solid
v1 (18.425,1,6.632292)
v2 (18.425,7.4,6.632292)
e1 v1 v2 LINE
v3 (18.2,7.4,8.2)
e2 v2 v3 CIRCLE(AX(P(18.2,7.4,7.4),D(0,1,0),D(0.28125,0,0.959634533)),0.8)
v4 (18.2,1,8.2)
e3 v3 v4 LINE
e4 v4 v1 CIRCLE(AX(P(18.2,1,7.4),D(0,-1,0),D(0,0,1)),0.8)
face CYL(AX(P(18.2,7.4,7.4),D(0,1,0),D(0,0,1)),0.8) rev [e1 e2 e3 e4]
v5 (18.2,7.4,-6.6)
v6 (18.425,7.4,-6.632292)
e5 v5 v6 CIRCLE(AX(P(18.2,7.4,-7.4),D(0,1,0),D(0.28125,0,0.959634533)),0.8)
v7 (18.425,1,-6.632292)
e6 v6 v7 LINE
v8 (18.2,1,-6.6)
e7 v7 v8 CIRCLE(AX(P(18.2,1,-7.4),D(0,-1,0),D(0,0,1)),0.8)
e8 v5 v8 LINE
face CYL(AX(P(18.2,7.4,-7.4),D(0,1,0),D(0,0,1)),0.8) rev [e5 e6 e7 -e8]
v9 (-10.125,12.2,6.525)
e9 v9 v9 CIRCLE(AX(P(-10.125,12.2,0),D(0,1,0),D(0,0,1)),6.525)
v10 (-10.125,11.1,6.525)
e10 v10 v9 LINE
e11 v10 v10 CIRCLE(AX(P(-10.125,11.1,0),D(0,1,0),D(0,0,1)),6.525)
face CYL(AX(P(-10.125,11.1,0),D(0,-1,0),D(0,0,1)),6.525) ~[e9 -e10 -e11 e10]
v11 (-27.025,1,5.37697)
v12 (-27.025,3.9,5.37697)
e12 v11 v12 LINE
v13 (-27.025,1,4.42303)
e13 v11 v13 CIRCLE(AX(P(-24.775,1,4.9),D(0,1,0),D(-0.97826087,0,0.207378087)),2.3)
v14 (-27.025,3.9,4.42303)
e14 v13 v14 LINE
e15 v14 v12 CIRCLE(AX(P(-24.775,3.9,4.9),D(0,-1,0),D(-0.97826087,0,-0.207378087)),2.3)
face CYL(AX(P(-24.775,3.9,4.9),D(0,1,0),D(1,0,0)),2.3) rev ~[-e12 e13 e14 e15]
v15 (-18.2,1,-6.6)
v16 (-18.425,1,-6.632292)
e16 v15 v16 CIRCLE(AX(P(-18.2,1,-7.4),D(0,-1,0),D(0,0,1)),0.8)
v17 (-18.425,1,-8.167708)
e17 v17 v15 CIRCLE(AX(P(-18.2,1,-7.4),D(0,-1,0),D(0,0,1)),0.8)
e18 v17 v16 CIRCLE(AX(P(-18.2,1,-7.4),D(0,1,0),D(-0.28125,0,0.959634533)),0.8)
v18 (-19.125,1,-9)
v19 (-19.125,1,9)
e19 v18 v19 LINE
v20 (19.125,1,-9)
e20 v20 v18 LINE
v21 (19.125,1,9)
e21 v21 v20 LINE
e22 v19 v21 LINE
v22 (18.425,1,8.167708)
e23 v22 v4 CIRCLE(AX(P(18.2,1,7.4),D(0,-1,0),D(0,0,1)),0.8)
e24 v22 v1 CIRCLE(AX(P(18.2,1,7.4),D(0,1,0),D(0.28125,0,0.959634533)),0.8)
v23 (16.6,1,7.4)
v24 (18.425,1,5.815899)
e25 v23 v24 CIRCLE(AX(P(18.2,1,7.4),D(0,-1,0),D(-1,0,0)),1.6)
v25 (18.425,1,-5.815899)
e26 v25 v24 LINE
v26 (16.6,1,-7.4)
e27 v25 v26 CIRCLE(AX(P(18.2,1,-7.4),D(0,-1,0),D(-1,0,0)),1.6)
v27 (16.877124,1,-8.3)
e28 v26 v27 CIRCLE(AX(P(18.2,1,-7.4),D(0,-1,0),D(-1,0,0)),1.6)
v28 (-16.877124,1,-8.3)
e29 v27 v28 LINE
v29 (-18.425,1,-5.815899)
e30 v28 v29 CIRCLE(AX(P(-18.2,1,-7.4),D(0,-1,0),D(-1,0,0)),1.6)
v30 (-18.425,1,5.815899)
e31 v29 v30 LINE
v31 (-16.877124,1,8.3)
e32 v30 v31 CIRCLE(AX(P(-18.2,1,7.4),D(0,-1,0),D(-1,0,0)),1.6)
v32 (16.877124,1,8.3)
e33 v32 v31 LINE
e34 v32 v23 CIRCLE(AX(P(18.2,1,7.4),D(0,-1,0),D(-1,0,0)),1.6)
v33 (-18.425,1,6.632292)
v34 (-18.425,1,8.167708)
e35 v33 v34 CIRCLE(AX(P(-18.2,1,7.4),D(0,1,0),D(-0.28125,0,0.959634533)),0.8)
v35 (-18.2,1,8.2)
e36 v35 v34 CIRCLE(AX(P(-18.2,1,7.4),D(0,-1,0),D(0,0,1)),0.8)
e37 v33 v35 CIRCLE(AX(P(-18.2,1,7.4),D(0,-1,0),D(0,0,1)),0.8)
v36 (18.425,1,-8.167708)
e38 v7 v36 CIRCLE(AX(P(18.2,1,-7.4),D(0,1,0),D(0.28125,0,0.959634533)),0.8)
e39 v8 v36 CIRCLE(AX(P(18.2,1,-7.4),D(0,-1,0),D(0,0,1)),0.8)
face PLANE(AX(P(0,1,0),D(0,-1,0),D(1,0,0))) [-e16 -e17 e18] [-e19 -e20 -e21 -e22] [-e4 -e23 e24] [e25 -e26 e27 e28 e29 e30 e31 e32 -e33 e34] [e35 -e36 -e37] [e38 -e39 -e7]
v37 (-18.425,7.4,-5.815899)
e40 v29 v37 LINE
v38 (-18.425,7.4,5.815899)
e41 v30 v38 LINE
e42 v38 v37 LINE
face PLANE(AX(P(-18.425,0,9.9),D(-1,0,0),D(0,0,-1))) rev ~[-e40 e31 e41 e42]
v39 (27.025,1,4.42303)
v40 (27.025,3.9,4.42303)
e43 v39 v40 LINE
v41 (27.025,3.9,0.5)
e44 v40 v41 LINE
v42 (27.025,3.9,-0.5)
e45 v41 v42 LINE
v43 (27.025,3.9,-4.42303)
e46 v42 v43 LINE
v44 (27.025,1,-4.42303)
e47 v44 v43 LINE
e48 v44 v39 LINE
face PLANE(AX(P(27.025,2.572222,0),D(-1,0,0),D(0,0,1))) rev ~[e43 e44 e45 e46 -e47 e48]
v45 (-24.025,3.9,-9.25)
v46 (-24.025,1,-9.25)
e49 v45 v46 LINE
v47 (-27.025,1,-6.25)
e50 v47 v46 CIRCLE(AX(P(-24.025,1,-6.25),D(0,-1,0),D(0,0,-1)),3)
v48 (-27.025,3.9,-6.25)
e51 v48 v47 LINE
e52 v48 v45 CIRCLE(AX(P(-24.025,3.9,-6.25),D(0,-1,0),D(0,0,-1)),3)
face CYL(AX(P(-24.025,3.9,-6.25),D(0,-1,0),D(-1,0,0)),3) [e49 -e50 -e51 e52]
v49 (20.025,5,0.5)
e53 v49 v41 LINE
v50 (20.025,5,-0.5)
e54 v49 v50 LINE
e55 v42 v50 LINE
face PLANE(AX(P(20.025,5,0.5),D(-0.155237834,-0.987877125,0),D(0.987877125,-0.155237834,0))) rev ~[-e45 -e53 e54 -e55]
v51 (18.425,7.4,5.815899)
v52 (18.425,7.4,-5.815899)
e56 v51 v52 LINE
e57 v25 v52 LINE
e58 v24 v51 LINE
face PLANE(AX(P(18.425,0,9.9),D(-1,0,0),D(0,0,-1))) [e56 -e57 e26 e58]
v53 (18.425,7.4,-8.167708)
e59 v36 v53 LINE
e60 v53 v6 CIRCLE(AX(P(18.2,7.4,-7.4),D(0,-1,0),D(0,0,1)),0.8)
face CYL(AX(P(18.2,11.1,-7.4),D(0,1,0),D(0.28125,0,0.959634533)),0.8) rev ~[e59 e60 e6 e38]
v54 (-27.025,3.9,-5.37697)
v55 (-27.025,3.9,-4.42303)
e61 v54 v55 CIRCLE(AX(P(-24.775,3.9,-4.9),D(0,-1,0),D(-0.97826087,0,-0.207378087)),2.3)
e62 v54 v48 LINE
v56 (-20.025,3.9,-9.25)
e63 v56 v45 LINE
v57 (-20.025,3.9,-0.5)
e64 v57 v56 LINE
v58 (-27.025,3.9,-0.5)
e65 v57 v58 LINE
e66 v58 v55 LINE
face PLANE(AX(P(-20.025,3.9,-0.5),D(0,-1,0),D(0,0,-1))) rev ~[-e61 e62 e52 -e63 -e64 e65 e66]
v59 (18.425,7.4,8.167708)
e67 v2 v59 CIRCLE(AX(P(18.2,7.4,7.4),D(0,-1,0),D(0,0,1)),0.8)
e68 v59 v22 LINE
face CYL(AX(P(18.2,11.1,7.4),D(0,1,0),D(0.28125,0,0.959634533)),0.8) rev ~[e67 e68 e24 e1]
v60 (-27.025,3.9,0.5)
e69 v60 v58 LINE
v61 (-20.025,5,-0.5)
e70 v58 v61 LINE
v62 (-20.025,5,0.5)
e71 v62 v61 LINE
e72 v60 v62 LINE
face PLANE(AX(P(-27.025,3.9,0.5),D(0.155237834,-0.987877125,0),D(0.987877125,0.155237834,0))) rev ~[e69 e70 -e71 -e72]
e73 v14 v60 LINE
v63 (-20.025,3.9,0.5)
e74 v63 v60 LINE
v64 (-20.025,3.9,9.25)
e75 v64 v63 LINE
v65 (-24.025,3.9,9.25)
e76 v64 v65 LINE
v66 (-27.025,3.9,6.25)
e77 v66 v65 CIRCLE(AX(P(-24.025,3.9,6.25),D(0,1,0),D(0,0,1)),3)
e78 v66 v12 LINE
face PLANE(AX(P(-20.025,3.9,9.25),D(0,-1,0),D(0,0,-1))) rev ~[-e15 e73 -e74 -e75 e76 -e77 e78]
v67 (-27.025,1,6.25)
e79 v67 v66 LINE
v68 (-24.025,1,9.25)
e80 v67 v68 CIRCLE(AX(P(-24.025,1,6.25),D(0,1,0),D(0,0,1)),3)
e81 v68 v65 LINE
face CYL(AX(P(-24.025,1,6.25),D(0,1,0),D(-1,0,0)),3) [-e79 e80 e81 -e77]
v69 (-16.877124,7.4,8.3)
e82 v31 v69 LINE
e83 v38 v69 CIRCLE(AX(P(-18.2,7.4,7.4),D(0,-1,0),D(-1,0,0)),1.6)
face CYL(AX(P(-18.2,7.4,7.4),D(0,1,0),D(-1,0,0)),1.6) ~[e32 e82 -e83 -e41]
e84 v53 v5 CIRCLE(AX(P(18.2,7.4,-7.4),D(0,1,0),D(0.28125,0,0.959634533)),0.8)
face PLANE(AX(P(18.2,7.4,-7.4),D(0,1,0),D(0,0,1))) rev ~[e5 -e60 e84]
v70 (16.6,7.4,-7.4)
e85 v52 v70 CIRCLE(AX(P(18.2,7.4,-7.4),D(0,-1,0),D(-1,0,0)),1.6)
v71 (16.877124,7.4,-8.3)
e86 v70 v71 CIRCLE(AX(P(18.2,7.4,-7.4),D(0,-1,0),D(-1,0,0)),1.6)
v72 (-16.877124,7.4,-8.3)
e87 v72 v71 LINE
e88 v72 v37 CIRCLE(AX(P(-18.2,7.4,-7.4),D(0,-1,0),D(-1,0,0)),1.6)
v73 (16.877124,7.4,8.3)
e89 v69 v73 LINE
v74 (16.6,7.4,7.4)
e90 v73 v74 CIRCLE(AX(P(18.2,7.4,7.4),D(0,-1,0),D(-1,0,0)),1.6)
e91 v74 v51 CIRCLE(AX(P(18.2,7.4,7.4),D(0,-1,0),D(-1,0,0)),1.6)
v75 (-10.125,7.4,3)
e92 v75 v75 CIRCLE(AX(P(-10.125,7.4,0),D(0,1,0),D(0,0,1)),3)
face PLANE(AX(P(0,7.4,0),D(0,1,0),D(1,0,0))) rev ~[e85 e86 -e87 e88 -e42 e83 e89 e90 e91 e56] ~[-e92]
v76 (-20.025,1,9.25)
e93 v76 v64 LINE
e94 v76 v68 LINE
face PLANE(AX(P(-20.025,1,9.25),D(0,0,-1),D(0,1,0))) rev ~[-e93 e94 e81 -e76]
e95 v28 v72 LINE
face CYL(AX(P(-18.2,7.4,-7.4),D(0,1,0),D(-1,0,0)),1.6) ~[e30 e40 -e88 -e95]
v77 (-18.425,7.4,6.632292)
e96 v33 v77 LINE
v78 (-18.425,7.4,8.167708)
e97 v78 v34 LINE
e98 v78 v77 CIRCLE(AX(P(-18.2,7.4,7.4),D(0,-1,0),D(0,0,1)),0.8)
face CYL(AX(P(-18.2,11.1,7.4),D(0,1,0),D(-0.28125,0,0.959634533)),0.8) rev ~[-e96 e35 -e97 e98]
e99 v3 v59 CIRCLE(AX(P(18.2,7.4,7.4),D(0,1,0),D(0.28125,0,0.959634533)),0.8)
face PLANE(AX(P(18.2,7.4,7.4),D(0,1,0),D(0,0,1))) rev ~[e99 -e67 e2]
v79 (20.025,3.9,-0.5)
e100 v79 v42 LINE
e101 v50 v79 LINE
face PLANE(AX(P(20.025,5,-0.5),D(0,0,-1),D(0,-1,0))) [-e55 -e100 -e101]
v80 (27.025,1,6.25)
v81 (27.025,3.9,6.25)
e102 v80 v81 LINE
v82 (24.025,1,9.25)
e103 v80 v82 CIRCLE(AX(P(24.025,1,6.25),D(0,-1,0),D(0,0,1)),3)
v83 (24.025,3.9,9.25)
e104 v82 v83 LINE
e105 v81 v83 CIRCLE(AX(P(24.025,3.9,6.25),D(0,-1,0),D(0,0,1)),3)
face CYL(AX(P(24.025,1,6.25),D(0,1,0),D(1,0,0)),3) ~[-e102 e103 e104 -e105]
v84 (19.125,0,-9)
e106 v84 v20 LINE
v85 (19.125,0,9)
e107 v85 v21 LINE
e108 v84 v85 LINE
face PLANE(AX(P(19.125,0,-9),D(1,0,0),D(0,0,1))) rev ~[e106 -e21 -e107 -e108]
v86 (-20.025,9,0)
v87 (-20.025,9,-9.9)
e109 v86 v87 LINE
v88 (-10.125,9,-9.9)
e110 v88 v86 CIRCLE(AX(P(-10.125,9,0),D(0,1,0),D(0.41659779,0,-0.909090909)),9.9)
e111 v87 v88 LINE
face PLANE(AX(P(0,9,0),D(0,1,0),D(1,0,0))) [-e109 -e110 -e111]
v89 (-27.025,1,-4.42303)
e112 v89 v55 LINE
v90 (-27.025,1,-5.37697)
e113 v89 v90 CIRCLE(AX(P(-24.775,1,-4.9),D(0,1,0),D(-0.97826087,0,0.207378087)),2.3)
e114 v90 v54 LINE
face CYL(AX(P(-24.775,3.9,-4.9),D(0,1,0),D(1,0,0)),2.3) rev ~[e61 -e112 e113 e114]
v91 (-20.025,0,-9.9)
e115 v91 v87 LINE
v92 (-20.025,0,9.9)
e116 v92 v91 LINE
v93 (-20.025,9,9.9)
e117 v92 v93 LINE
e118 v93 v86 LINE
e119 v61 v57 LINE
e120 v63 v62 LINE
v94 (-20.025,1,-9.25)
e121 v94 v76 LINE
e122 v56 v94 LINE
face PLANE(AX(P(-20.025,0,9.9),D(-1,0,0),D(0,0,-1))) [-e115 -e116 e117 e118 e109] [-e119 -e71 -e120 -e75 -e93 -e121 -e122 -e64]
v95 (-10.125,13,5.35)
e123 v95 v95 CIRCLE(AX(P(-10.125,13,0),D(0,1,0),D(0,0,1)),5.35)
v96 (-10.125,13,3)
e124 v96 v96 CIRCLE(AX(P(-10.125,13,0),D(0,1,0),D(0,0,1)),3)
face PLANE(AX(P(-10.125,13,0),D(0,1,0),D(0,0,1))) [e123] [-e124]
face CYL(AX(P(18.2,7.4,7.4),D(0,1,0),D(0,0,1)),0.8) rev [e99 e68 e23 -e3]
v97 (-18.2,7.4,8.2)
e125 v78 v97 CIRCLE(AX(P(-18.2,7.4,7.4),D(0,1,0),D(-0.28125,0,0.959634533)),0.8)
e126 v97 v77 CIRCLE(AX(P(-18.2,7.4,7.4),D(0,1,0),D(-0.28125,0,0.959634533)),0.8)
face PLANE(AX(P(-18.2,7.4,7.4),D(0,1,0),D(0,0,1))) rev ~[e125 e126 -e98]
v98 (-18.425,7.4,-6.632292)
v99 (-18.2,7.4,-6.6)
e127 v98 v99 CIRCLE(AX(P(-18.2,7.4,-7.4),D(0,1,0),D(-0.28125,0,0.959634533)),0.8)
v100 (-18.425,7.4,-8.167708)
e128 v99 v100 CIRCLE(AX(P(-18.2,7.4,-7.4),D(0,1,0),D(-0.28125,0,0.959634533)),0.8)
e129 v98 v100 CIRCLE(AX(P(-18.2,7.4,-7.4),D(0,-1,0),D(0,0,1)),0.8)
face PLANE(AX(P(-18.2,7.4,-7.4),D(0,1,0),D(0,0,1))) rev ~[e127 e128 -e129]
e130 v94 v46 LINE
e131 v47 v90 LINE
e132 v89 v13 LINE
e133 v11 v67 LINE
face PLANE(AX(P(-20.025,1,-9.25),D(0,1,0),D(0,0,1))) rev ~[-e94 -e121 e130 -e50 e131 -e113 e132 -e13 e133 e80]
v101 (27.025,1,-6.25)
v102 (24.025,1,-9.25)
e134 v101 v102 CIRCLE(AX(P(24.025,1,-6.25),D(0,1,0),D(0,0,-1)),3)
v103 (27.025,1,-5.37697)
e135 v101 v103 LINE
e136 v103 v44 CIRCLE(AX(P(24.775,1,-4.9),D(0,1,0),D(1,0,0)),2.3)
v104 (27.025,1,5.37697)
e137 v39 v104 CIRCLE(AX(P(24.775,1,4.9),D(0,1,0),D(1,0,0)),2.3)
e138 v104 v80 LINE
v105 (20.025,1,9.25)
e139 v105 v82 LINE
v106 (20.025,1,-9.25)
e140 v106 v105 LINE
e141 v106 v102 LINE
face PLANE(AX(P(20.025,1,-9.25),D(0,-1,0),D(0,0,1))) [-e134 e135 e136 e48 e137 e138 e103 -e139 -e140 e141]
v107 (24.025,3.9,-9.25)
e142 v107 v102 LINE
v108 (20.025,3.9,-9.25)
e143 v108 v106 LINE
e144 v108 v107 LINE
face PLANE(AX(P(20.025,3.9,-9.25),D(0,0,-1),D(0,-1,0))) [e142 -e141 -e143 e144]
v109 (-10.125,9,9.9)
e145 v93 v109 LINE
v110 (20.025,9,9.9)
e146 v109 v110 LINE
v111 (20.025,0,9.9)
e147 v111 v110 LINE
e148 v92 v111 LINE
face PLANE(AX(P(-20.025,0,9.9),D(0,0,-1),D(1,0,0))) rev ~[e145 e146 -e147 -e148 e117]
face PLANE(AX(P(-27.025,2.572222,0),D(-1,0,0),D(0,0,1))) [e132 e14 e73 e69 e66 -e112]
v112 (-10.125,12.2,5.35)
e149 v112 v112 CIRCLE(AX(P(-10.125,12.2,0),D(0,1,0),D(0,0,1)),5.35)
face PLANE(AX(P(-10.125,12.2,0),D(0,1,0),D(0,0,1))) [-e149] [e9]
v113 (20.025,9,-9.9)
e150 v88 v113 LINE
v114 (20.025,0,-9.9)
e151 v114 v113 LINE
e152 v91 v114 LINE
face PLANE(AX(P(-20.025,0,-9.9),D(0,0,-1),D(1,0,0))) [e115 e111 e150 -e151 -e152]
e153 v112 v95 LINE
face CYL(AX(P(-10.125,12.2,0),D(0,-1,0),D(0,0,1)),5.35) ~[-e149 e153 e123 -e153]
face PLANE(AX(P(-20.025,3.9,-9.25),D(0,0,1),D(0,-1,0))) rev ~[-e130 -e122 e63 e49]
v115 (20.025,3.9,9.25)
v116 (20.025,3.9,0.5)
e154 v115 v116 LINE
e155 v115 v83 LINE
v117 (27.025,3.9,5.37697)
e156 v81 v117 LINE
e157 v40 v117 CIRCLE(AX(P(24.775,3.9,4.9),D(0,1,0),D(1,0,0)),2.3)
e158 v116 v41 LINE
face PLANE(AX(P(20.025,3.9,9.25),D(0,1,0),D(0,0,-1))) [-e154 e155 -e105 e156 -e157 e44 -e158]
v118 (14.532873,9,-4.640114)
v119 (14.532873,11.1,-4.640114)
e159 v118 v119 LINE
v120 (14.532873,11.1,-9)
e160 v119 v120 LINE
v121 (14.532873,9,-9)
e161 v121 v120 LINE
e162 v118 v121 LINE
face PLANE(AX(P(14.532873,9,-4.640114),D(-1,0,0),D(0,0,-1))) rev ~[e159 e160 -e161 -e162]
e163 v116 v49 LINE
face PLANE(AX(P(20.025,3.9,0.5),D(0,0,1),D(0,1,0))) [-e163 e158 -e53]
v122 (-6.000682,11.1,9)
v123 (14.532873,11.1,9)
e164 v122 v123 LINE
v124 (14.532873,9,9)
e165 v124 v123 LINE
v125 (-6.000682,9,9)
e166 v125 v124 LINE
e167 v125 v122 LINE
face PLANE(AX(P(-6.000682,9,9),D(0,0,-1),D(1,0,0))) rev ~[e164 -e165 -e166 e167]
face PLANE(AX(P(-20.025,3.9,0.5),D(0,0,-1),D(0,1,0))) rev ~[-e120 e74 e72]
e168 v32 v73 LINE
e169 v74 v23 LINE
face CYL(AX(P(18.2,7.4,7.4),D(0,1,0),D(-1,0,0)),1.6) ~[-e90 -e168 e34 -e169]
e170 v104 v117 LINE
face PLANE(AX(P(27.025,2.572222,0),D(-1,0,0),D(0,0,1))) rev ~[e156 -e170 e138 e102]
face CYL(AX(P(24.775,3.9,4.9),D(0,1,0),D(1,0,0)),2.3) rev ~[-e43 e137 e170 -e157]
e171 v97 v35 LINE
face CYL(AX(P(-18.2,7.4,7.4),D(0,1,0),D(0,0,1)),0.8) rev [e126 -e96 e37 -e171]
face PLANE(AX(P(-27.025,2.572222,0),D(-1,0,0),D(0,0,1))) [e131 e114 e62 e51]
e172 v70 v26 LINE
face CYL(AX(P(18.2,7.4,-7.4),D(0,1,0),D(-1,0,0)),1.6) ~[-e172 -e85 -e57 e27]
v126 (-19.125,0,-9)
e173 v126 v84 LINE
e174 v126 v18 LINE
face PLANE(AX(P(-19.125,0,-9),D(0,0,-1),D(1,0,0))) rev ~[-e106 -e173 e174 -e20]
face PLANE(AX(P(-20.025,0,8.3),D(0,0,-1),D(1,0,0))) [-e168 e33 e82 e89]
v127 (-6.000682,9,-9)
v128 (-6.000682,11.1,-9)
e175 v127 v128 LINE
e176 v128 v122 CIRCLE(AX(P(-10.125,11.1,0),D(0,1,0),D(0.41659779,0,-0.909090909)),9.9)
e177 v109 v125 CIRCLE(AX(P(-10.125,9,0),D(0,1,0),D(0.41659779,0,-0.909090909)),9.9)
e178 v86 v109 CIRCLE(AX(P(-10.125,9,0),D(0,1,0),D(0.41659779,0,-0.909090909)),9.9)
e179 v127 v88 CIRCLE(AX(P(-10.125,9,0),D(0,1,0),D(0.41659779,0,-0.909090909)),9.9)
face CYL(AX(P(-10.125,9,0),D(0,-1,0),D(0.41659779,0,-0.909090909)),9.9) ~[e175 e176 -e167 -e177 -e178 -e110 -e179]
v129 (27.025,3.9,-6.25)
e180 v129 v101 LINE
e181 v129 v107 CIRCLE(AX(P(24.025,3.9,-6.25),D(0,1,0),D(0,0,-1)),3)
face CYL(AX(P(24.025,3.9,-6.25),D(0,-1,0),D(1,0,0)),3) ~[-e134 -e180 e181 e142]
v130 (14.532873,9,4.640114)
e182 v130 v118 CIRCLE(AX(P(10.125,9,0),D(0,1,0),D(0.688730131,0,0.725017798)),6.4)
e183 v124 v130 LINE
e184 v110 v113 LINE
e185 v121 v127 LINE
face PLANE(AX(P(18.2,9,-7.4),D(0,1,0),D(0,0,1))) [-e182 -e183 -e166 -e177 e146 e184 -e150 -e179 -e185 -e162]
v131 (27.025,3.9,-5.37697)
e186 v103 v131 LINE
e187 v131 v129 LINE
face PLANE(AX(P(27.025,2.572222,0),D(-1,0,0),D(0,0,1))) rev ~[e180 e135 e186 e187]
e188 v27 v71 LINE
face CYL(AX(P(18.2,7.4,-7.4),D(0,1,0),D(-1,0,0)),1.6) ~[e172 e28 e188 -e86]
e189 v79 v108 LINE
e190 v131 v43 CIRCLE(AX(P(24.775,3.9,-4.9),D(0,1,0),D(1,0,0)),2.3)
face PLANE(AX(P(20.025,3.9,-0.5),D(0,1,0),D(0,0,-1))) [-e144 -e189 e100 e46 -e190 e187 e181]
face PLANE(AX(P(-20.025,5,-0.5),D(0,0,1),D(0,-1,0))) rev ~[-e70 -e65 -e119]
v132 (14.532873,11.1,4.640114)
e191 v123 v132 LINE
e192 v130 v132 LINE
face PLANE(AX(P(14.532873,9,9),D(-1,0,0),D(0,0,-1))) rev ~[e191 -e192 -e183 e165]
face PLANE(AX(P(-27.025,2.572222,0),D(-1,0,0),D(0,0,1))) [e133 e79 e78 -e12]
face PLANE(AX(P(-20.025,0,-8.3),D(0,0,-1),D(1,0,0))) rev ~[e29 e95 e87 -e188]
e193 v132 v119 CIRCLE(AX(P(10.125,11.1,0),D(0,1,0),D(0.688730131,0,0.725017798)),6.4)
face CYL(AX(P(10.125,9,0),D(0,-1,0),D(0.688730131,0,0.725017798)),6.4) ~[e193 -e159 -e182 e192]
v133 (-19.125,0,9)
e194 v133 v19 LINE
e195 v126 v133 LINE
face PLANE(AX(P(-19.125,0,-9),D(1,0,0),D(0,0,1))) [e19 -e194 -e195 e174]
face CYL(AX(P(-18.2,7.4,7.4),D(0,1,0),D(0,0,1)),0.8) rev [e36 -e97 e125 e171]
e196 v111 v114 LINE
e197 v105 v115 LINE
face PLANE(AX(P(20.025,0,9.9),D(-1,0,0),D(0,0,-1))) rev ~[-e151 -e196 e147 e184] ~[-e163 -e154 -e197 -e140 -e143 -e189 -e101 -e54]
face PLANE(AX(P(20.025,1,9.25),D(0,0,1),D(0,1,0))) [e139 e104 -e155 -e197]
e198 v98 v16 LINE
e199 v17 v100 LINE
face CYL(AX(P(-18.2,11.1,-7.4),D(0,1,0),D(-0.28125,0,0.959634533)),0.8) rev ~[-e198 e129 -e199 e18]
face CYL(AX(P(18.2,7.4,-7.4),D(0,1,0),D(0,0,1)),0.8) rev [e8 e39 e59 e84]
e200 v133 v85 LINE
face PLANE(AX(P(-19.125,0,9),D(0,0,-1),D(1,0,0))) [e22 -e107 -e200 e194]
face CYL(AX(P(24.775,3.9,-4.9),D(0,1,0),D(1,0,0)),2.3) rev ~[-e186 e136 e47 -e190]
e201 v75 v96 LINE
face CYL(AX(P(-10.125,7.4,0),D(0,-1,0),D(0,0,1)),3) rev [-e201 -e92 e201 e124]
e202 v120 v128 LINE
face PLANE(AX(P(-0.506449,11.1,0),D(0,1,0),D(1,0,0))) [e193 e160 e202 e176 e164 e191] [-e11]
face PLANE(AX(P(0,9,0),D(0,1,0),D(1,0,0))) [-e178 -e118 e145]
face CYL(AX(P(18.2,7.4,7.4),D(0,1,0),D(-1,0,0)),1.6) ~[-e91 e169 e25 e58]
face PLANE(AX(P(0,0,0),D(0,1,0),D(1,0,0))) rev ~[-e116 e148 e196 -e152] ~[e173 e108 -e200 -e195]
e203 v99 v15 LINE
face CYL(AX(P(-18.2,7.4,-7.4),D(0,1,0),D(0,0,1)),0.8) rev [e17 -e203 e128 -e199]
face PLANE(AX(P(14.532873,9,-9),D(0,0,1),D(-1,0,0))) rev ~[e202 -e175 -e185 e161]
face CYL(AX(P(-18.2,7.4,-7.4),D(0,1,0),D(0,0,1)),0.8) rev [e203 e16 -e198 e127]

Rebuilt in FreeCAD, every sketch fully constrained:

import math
import FreeCAD as App
import Part
import Sketcher
from FreeCAD import Vector


def edges_at(feature, points):
    """Names of the edges that pass closest to the given points."""
    edges = feature.Shape.Edges
    near = lambda p: min(range(len(edges)), key=lambda i: edges[i].distToShape(Part.Vertex(*p))[0])
    return sorted({f"Edge{near(p) + 1}" for p in points})


def faces_at(feature, points):
    """Names of the faces that lie closest to the given points."""
    faces = feature.Shape.Faces
    near = lambda p: min(range(len(faces)), key=lambda i: faces[i].distToShape(Part.Vertex(*p))[0])
    return sorted({f"Face{near(p) + 1}" for p in points})

doc = App.newDocument("Part")
params = doc.addObject("Spreadsheet::Sheet", "Params")
for row, (alias, value) in enumerate([
    ("sketch1_height", "19.8 mm"),
    ("sketch1_width", "40.05 mm"),
    ("pad1_length", "9 mm"),
    ("thickness_wall", "1.6 mm"),
    ("sketch2_height", "18 mm"),
    ("sketch2_width", "38.25 mm"),
    ("pocket1_length", "1 mm"),
    ("sketch3_radius", "9.9 mm"),
    ("sketch3_radius2", "6.4 mm"),
    ("pad2_length", "2.1 mm"),
    ("sketch4_diameter", "13.05 mm"),
    ("pad3_length", "1.1 mm"),
    ("sketch5_diameter", "10.7 mm"),
    ("pad4_length", "0.8 mm"),
    ("sketch6_diameter", "6 mm"),
    ("pocket2_length", "5.6 mm"),
    ("sketch7_diameter", "1.6 mm"),
    ("pocket3_length", "14 mm"),
    ("sketch8_diameter", "3.2 mm"),
    ("sketch8_diameter2", "1.6 mm"),
    ("pad5_length", "6.4 mm"),
    ("sketch9_diameter", "1.6 mm"),
    ("pad6_length", "1.6 mm"),
    ("sketch10_height", "1 mm"),
    ("sketch10_width", "2.9 mm"),
    ("sketch10_width2", "1.1 mm"),
    ("sketch10_height2", "18.5 mm"),
    ("pad7_length", "7 mm"),
    ("sketch11_width", "7 mm"),
    ("sketch11_height", "1.1 mm"),
    ("pocket4_length", "7 mm"),
    ("sketch12_diameter", "4.6 mm"),
    ("pocket5_length", "7 mm"),
    ("sketch13_height", "1 mm"),
    ("sketch13_width", "2.9 mm"),
    ("sketch13_width2", "1.1 mm"),
    ("sketch13_height2", "18.5 mm"),
    ("pad8_length", "7 mm"),
    ("sketch14_diameter", "4.6 mm"),
    ("pocket6_length", "7 mm"),
    ("fillet_radius", "3 mm"),
    ("sketch15_width", "7 mm"),
    ("sketch15_height", "1.1 mm"),
    ("pocket7_length", "7 mm"),
], start=1):
    params.set(f"A{row}", alias)
    params.set(f"B{row}", "=" + value)
    params.setAlias(f"B{row}", alias)

body = doc.addObject("PartDesign::Body", "Body")

sketch1 = body.newObject("Sketcher::SketchObject", "Sketch")
sketch1.AttachmentSupport = (doc.getObject("XZ_Plane"), [""])
sketch1.MapMode = "FlatFace"
sketch1.addGeometry([
    Part.LineSegment(Vector(-20, -10, 0), Vector(-20, 10, 0)),
    Part.LineSegment(Vector(-20, 10, 0), Vector(20, 10, 0)),
    Part.LineSegment(Vector(20, 10, 0), Vector(20, -10, 0)),
    Part.LineSegment(Vector(20, -10, 0), Vector(-20, -10, 0)),
], False)
sketch1.addConstraint([
    Sketcher.Constraint("Coincident", 0, 2, 1, 1),
    Sketcher.Constraint("Coincident", 1, 2, 2, 1),
    Sketcher.Constraint("Coincident", 2, 2, 3, 1),
    Sketcher.Constraint("Coincident", 3, 2, 0, 1),
    Sketcher.Constraint("Vertical", 0),
    Sketcher.Constraint("Horizontal", 1),
    Sketcher.Constraint("Vertical", 2),
    Sketcher.Constraint("Horizontal", 3),
    Sketcher.Constraint("Symmetric", 0, 2, 2, 2, -1, 1),
    Sketcher.Constraint("DistanceY", 0, 1, 0, 2, 19.8),
    Sketcher.Constraint("DistanceX", 1, 1, 1, 2, 40.05),
])
sketch1.setExpression("Constraints[9]", "Params.sketch1_height")
sketch1.setExpression("Constraints[10]", "Params.sketch1_width")
pad1 = body.newObject("PartDesign::Pad", "Pad")
pad1.Profile = sketch1
pad1.setExpression("Length", "Params.pad1_length")
pad1.Reversed = True
doc.recompute()

thickness = body.newObject("PartDesign::Thickness", "Thickness")
thickness.Base = (pad1, faces_at(pad1, [(0, 0, 0)]))
thickness.setExpression("Value", "Params.thickness_wall")
thickness.Reversed = True
thickness.Join = "Intersection"

sketch2 = body.newObject("Sketcher::SketchObject", "Sketch001")
sketch2.AttachmentSupport = (doc.getObject("XZ_Plane"), [""])
sketch2.MapMode = "FlatFace"
sketch2.addGeometry([
    Part.LineSegment(Vector(-19, 9, 0), Vector(-19, -9, 0)),
    Part.LineSegment(Vector(-19, -9, 0), Vector(19, -9, 0)),
    Part.LineSegment(Vector(19, -9, 0), Vector(19, 9, 0)),
    Part.LineSegment(Vector(19, 9, 0), Vector(-19, 9, 0)),
], False)
sketch2.addConstraint([
    Sketcher.Constraint("Coincident", 0, 2, 1, 1),
    Sketcher.Constraint("Coincident", 1, 2, 2, 1),
    Sketcher.Constraint("Coincident", 2, 2, 3, 1),
    Sketcher.Constraint("Coincident", 3, 2, 0, 1),
    Sketcher.Constraint("Vertical", 0),
    Sketcher.Constraint("Horizontal", 1),
    Sketcher.Constraint("Vertical", 2),
    Sketcher.Constraint("Horizontal", 3),
    Sketcher.Constraint("Symmetric", 0, 2, 2, 2, -1, 1),
    Sketcher.Constraint("DistanceY", 0, 2, 0, 1, 18.0),
    Sketcher.Constraint("DistanceX", 1, 1, 1, 2, 38.25),
])
sketch2.setExpression("Constraints[9]", "Params.sketch2_height")
sketch2.setExpression("Constraints[10]", "Params.sketch2_width")
pocket1 = body.newObject("PartDesign::Pocket", "Pocket")
pocket1.Profile = sketch2
pocket1.setExpression("Length", "Params.pocket1_length")

sketch3 = body.newObject("Sketcher::SketchObject", "Sketch002")
sketch3.AttachmentSupport = (doc.getObject("XZ_Plane"), [""])
sketch3.MapMode = "FlatFace"
sketch3.AttachmentOffset = App.Placement(Vector(0, 0, -9), App.Rotation())
sketch3.addGeometry([
    Part.LineSegment(Vector(14.5, -4.6, 0), Vector(14.5, -9, 0)),
    Part.LineSegment(Vector(14.5, -9, 0), Vector(-6, -9, 0)),
    Part.ArcOfCircle(Part.Circle(Vector(-10.1, 0, 0), Vector(0, 0, 1), 9.9), math.radians(65), math.radians(295)),
    Part.LineSegment(Vector(-6, 9, 0), Vector(14.5, 9, 0)),
    Part.LineSegment(Vector(14.5, 9, 0), Vector(14.5, 4.6, 0)),
    Part.ArcOfCircle(Part.Circle(Vector(10.1, 0, 0), Vector(0, 0, 1), 6.4), math.radians(-46), math.radians(46)),
], False)
sketch3.addConstraint([
    Sketcher.Constraint("Coincident", 0, 2, 1, 1),
    Sketcher.Constraint("Coincident", 1, 2, 2, 2),
    Sketcher.Constraint("Coincident", 2, 1, 3, 1),
    Sketcher.Constraint("Coincident", 3, 2, 4, 1),
    Sketcher.Constraint("Coincident", 4, 2, 5, 2),
    Sketcher.Constraint("Coincident", 5, 1, 0, 1),
    Sketcher.Constraint("Vertical", 0),
    Sketcher.Constraint("Horizontal", 1),
    Sketcher.Constraint("Horizontal", 3),
    Sketcher.Constraint("Vertical", 4),
    Sketcher.Constraint("Symmetric", 2, 3, 5, 3, -1, 1),
    Sketcher.Constraint("Symmetric", 1, 2, 2, 1, -1),
    Sketcher.Constraint("Vertical", 0, 2, 3, 2),
    Sketcher.Constraint("Radius", 2, 9.9),
    Sketcher.Constraint("Radius", 5, 6.4),
    Sketcher.Constraint("DistanceY", 0, 2, -1, 1, 9.0),
    Sketcher.Constraint("DistanceX", 2, 3, 5, 3, 20.25),
    Sketcher.Constraint("DistanceX", 1, 2, 1, 1, 20.533555),
])
sketch3.setExpression("Constraints[13]", "Params.sketch3_radius")
sketch3.setExpression("Constraints[14]", "Params.sketch3_radius2")
pad2 = body.newObject("PartDesign::Pad", "Pad001")
pad2.Profile = sketch3
pad2.setExpression("Length", "Params.pad2_length")
pad2.Reversed = True

sketch4 = body.newObject("Sketcher::SketchObject", "Sketch003")
sketch4.AttachmentSupport = (doc.getObject("XZ_Plane"), [""])
sketch4.MapMode = "FlatFace"
sketch4.AttachmentOffset = App.Placement(Vector(0, 0, -11.1), App.Rotation())
sketch4.addGeometry(Part.Circle(Vector(-10, 0, 0), Vector(0, 0, 1), 7), False)
sketch4.addConstraint([
    Sketcher.Constraint("PointOnObject", 0, 3, -1),
    Sketcher.Constraint("Diameter", 0, 13.05),
    Sketcher.Constraint("DistanceX", 0, 3, -1, 1, 10.125),
])
sketch4.setExpression("Constraints[1]", "Params.sketch4_diameter")
pad3 = body.newObject("PartDesign::Pad", "Pad002")
pad3.Profile = sketch4
pad3.setExpression("Length", "Params.pad3_length")
pad3.Reversed = True

sketch5 = body.newObject("Sketcher::SketchObject", "Sketch004")
sketch5.AttachmentSupport = (doc.getObject("XZ_Plane"), [""])
sketch5.MapMode = "FlatFace"
sketch5.AttachmentOffset = App.Placement(Vector(0, 0, -12.2), App.Rotation())
sketch5.addGeometry(Part.Circle(Vector(-10, 0, 0), Vector(0, 0, 1), 5), False)
sketch5.addConstraint([
    Sketcher.Constraint("PointOnObject", 0, 3, -1),
    Sketcher.Constraint("Diameter", 0, 10.7),
    Sketcher.Constraint("DistanceX", 0, 3, -1, 1, 10.125),
])
sketch5.setExpression("Constraints[1]", "Params.sketch5_diameter")
pad4 = body.newObject("PartDesign::Pad", "Pad003")
pad4.Profile = sketch5
pad4.setExpression("Length", "Params.pad4_length")
pad4.Reversed = True

sketch6 = body.newObject("Sketcher::SketchObject", "Sketch005")
sketch6.AttachmentSupport = (doc.getObject("XZ_Plane"), [""])
sketch6.MapMode = "FlatFace"
sketch6.AttachmentOffset = App.Placement(Vector(0, 0, -7.4), App.Rotation())
sketch6.addGeometry(Part.Circle(Vector(-10.1, 0, 0), Vector(0, 0, 1), 3), False)
sketch6.addConstraint([
    Sketcher.Constraint("PointOnObject", 0, 3, -1),
    Sketcher.Constraint("Diameter", 0, 6.0),
    Sketcher.Constraint("DistanceX", 0, 3, -1, 1, 10.125),
])
sketch6.setExpression("Constraints[1]", "Params.sketch6_diameter")
pocket2 = body.newObject("PartDesign::Pocket", "Pocket001")
pocket2.Profile = sketch6
pocket2.setExpression("Length", "Params.pocket2_length")

sketch7 = body.newObject("Sketcher::SketchObject", "Sketch006")
sketch7.AttachmentSupport = (doc.getObject("XZ_Plane"), [""])
sketch7.MapMode = "FlatFace"
sketch7.AttachmentOffset = App.Placement(Vector(0, 0, -11.1), App.Rotation())
sketch7.addGeometry([
    Part.Circle(Vector(-18.2, -7.4, 0), Vector(0, 0, 1), 0.8),
    Part.Circle(Vector(18.2, -7.4, 0), Vector(0, 0, 1), 0.8),
    Part.Circle(Vector(18.2, 7.4, 0), Vector(0, 0, 1), 0.8),
    Part.Circle(Vector(-18.2, 7.4, 0), Vector(0, 0, 1), 0.8),
], False)
sketch7.addConstraint([
    Sketcher.Constraint("Equal", 0, 1),
    Sketcher.Constraint("Equal", 1, 2),
    Sketcher.Constraint("Equal", 2, 3),
    Sketcher.Constraint("Symmetric", 0, 3, 2, 3, -1, 1),
    Sketcher.Constraint("Symmetric", 1, 3, 3, 3, -1, 1),
    Sketcher.Constraint("Symmetric", 0, 3, 1, 3, -2),
    Sketcher.Constraint("Diameter", 0, 1.6),
    Sketcher.Constraint("DistanceX", 0, 3, -1, 1, 18.2),
    Sketcher.Constraint("DistanceY", 0, 3, -1, 1, 7.4),
])
sketch7.setExpression("Constraints[6]", "Params.sketch7_diameter")
pocket3 = body.newObject("PartDesign::Pocket", "Pocket002")
pocket3.Profile = sketch7
pocket3.setExpression("Length", "Params.pocket3_length")
pocket3.Reversed = True

sketch8 = body.newObject("Sketcher::SketchObject", "Sketch007")
sketch8.AttachmentSupport = (doc.getObject("XZ_Plane"), [""])
sketch8.MapMode = "FlatFace"
sketch8.AttachmentOffset = App.Placement(Vector(0, 0, -7.4), App.Rotation())
sketch8.addGeometry([
    Part.Circle(Vector(-18.2, 7.4, 0), Vector(0, 0, 1), 1.6),
    Part.Circle(Vector(-18.2, 7.4, 0), Vector(0, 0, 1), 0.8),
    Part.Circle(Vector(-18.2, -7.4, 0), Vector(0, 0, 1), 1.6),
    Part.Circle(Vector(-18.2, -7.4, 0), Vector(0, 0, 1), 0.8),
    Part.Circle(Vector(18.2, -7.4, 0), Vector(0, 0, 1), 1.6),
    Part.Circle(Vector(18.2, -7.4, 0), Vector(0, 0, 1), 0.8),
    Part.Circle(Vector(18.2, 7.4, 0), Vector(0, 0, 1), 1.6),
    Part.Circle(Vector(18.2, 7.4, 0), Vector(0, 0, 1), 0.8),
], False)
sketch8.addConstraint([
    Sketcher.Constraint("Coincident", 1, 3, 0, 3),
    Sketcher.Constraint("Coincident", 3, 3, 2, 3),
    Sketcher.Constraint("Coincident", 5, 3, 4, 3),
    Sketcher.Constraint("Coincident", 7, 3, 6, 3),
    Sketcher.Constraint("Equal", 0, 2),
    Sketcher.Constraint("Equal", 1, 3),
    Sketcher.Constraint("Equal", 2, 4),
    Sketcher.Constraint("Equal", 3, 5),
    Sketcher.Constraint("Equal", 4, 6),
    Sketcher.Constraint("Equal", 5, 7),
    Sketcher.Constraint("Symmetric", 0, 3, 4, 3, -1, 1),
    Sketcher.Constraint("Symmetric", 2, 3, 6, 3, -1, 1),
    Sketcher.Constraint("Symmetric", 2, 3, 4, 3, -2),
    Sketcher.Constraint("Diameter", 0, 3.2),
    Sketcher.Constraint("Diameter", 1, 1.6),
    Sketcher.Constraint("DistanceX", 0, 3, -1, 1, 18.2),
    Sketcher.Constraint("DistanceY", -1, 1, 0, 3, 7.4),
])
sketch8.setExpression("Constraints[13]", "Params.sketch8_diameter")
sketch8.setExpression("Constraints[14]", "Params.sketch8_diameter2")
pad5 = body.newObject("PartDesign::Pad", "Pad004")
pad5.Profile = sketch8
pad5.setExpression("Length", "Params.pad5_length")

sketch9 = body.newObject("Sketcher::SketchObject", "Sketch008")
sketch9.AttachmentSupport = (doc.getObject("XZ_Plane"), [""])
sketch9.MapMode = "FlatFace"
sketch9.AttachmentOffset = App.Placement(Vector(0, 0, -9), App.Rotation())
sketch9.addGeometry([
    Part.Circle(Vector(18.2, -7.4, 0), Vector(0, 0, 1), 0.8),
    Part.Circle(Vector(18.2, 7.4, 0), Vector(0, 0, 1), 0.8),
    Part.Circle(Vector(-18.2, 7.4, 0), Vector(0, 0, 1), 0.8),
    Part.Circle(Vector(-18.2, -7.4, 0), Vector(0, 0, 1), 0.8),
], False)
sketch9.addConstraint([
    Sketcher.Constraint("Equal", 0, 1),
    Sketcher.Constraint("Equal", 1, 2),
    Sketcher.Constraint("Equal", 2, 3),
    Sketcher.Constraint("Symmetric", 0, 3, 2, 3, -1, 1),
    Sketcher.Constraint("Symmetric", 1, 3, 3, 3, -1, 1),
    Sketcher.Constraint("Symmetric", 1, 3, 2, 3, -2),
    Sketcher.Constraint("Diameter", 0, 1.6),
    Sketcher.Constraint("DistanceX", -1, 1, 0, 3, 18.2),
    Sketcher.Constraint("DistanceY", 0, 3, -1, 1, 7.4),
])
sketch9.setExpression("Constraints[6]", "Params.sketch9_diameter")
pad6 = body.newObject("PartDesign::Pad", "Pad005")
pad6.Profile = sketch9
pad6.setExpression("Length", "Params.pad6_length")

sketch10 = body.newObject("Sketcher::SketchObject", "Sketch009")
sketch10.AttachmentSupport = (doc.getObject("YZ_Plane"), [""])
sketch10.MapMode = "FlatFace"
sketch10.AttachmentOffset = App.Placement(Vector(0, 0, 20.025), App.Rotation())
sketch10.addGeometry([
    Part.LineSegment(Vector(1, 9.2, 0), Vector(1, -9.2, 0)),
    Part.LineSegment(Vector(1, -9.2, 0), Vector(3.9, -9.2, 0)),
    Part.LineSegment(Vector(3.9, -9.2, 0), Vector(3.9, -0.5, 0)),
    Part.LineSegment(Vector(3.9, -0.5, 0), Vector(5, -0.5, 0)),
    Part.LineSegment(Vector(5, -0.5, 0), Vector(5, 0.5, 0)),
    Part.LineSegment(Vector(5, 0.5, 0), Vector(3.9, 0.5, 0)),
    Part.LineSegment(Vector(3.9, 0.5, 0), Vector(3.9, 9.2, 0)),
    Part.LineSegment(Vector(3.9, 9.2, 0), Vector(1, 9.2, 0)),
], False)
sketch10.addConstraint([
    Sketcher.Constraint("Coincident", 0, 2, 1, 1),
    Sketcher.Constraint("Coincident", 1, 2, 2, 1),
    Sketcher.Constraint("Coincident", 2, 2, 3, 1),
    Sketcher.Constraint("Coincident", 3, 2, 4, 1),
    Sketcher.Constraint("Coincident", 4, 2, 5, 1),
    Sketcher.Constraint("Coincident", 5, 2, 6, 1),
    Sketcher.Constraint("Coincident", 6, 2, 7, 1),
    Sketcher.Constraint("Coincident", 7, 2, 0, 1),
    Sketcher.Constraint("Vertical", 0),
    Sketcher.Constraint("Horizontal", 1),
    Sketcher.Constraint("Vertical", 2),
    Sketcher.Constraint("Horizontal", 3),
    Sketcher.Constraint("Vertical", 4),
    Sketcher.Constraint("Horizontal", 5),
    Sketcher.Constraint("Vertical", 6),
    Sketcher.Constraint("Horizontal", 7),
    Sketcher.Constraint("Symmetric", 2, 2, 5, 2, -1),
    Sketcher.Constraint("Equal", 2, 6),
    Sketcher.Constraint("DistanceY", 4, 1, 4, 2, 1.0),
    Sketcher.Constraint("DistanceX", 1, 1, 1, 2, 2.9),
    Sketcher.Constraint("DistanceX", 3, 1, 3, 2, 1.1),
    Sketcher.Constraint("DistanceY", 0, 2, 0, 1, 18.5),
    Sketcher.Constraint("DistanceX", -1, 1, 0, 2, 1.0),
])
sketch10.setExpression("Constraints[18]", "Params.sketch10_height")
sketch10.setExpression("Constraints[19]", "Params.sketch10_width")
sketch10.setExpression("Constraints[20]", "Params.sketch10_width2")
sketch10.setExpression("Constraints[21]", "Params.sketch10_height2")
pad7 = body.newObject("PartDesign::Pad", "Pad006")
pad7.Profile = sketch10
pad7.setExpression("Length", "Params.pad7_length")

sketch11 = body.newObject("Sketcher::SketchObject", "Sketch010")
sketch11.AttachmentSupport = (doc.getObject("XY_Plane"), [""])
sketch11.MapMode = "FlatFace"
sketch11.AttachmentOffset = App.Placement(Vector(0, 0, 0.5), App.Rotation())
sketch11.addGeometry([
    Part.LineSegment(Vector(20, 5, 0), Vector(27, 3.9, 0)),
    Part.LineSegment(Vector(27, 3.9, 0), Vector(27, 5, 0)),
    Part.LineSegment(Vector(27, 5, 0), Vector(20, 5, 0)),
], False)
sketch11.addConstraint([
    Sketcher.Constraint("Coincident", 0, 2, 1, 1),
    Sketcher.Constraint("Coincident", 1, 2, 2, 1),
    Sketcher.Constraint("Coincident", 2, 2, 0, 1),
    Sketcher.Constraint("Vertical", 1),
    Sketcher.Constraint("Horizontal", 2),
    Sketcher.Constraint("DistanceX", 2, 2, 2, 1, 7.0),
    Sketcher.Constraint("DistanceY", 1, 1, 1, 2, 1.1),
    Sketcher.Constraint("DistanceY", -1, 1, 1, 2, 5.0),
    Sketcher.Constraint("DistanceX", -1, 1, 0, 2, 27.025),
])
sketch11.setExpression("Constraints[5]", "Params.sketch11_width")
sketch11.setExpression("Constraints[6]", "Params.sketch11_height")
pocket4 = body.newObject("PartDesign::Pocket", "Pocket003")
pocket4.Profile = sketch11
pocket4.setExpression("Length", "Params.pocket4_length")

sketch12 = body.newObject("Sketcher::SketchObject", "Sketch011")
sketch12.AttachmentSupport = (doc.getObject("XZ_Plane"), [""])
sketch12.MapMode = "FlatFace"
sketch12.AttachmentOffset = App.Placement(Vector(0, 0, -3.9), App.Rotation())
sketch12.addGeometry([
    Part.Circle(Vector(24.8, 4.9, 0), Vector(0, 0, 1), 2.3),
    Part.Circle(Vector(24.8, -4.9, 0), Vector(0, 0, 1), 2.3),
], False)
sketch12.addConstraint([
    Sketcher.Constraint("Equal", 0, 1),
    Sketcher.Constraint("Symmetric", 0, 3, 1, 3, -1),
    Sketcher.Constraint("Diameter", 0, 4.6),
    Sketcher.Constraint("DistanceY", -1, 1, 0, 3, 4.9),
    Sketcher.Constraint("DistanceX", -1, 1, 0, 3, 24.775),
])
sketch12.setExpression("Constraints[2]", "Params.sketch12_diameter")
pocket5 = body.newObject("PartDesign::Pocket", "Pocket004")
pocket5.Profile = sketch12
pocket5.setExpression("Length", "Params.pocket5_length")
pocket5.Reversed = True

sketch13 = body.newObject("Sketcher::SketchObject", "Sketch012")
sketch13.AttachmentSupport = (doc.getObject("YZ_Plane"), [""])
sketch13.MapMode = "FlatFace"
sketch13.AttachmentOffset = App.Placement(Vector(0, 0, -20.025), App.Rotation())
sketch13.addGeometry([
    Part.LineSegment(Vector(3.9, -0.5, 0), Vector(3.9, -9.2, 0)),
    Part.LineSegment(Vector(3.9, -9.2, 0), Vector(1, -9.2, 0)),
    Part.LineSegment(Vector(1, -9.2, 0), Vector(1, 9.2, 0)),
    Part.LineSegment(Vector(1, 9.2, 0), Vector(3.9, 9.2, 0)),
    Part.LineSegment(Vector(3.9, 9.2, 0), Vector(3.9, 0.5, 0)),
    Part.LineSegment(Vector(3.9, 0.5, 0), Vector(5, 0.5, 0)),
    Part.LineSegment(Vector(5, 0.5, 0), Vector(5, -0.5, 0)),
    Part.LineSegment(Vector(5, -0.5, 0), Vector(3.9, -0.5, 0)),
], False)
sketch13.addConstraint([
    Sketcher.Constraint("Coincident", 0, 2, 1, 1),
    Sketcher.Constraint("Coincident", 1, 2, 2, 1),
    Sketcher.Constraint("Coincident", 2, 2, 3, 1),
    Sketcher.Constraint("Coincident", 3, 2, 4, 1),
    Sketcher.Constraint("Coincident", 4, 2, 5, 1),
    Sketcher.Constraint("Coincident", 5, 2, 6, 1),
    Sketcher.Constraint("Coincident", 6, 2, 7, 1),
    Sketcher.Constraint("Coincident", 7, 2, 0, 1),
    Sketcher.Constraint("Vertical", 0),
    Sketcher.Constraint("Horizontal", 1),
    Sketcher.Constraint("Vertical", 2),
    Sketcher.Constraint("Horizontal", 3),
    Sketcher.Constraint("Vertical", 4),
    Sketcher.Constraint("Horizontal", 5),
    Sketcher.Constraint("Vertical", 6),
    Sketcher.Constraint("Horizontal", 7),
    Sketcher.Constraint("Symmetric", 0, 2, 3, 2, -1),
    Sketcher.Constraint("Equal", 0, 4),
    Sketcher.Constraint("DistanceY", 6, 2, 6, 1, 1.0),
    Sketcher.Constraint("DistanceX", 1, 2, 1, 1, 2.9),
    Sketcher.Constraint("DistanceX", 5, 1, 5, 2, 1.1),
    Sketcher.Constraint("DistanceY", 2, 1, 2, 2, 18.5),
    Sketcher.Constraint("DistanceX", -1, 1, 1, 2, 1.0),
])
sketch13.setExpression("Constraints[18]", "Params.sketch13_height")
sketch13.setExpression("Constraints[19]", "Params.sketch13_width")
sketch13.setExpression("Constraints[20]", "Params.sketch13_width2")
sketch13.setExpression("Constraints[21]", "Params.sketch13_height2")
pad8 = body.newObject("PartDesign::Pad", "Pad007")
pad8.Profile = sketch13
pad8.setExpression("Length", "Params.pad8_length")
pad8.Reversed = True

sketch14 = body.newObject("Sketcher::SketchObject", "Sketch013")
sketch14.AttachmentSupport = (doc.getObject("XZ_Plane"), [""])
sketch14.MapMode = "FlatFace"
sketch14.AttachmentOffset = App.Placement(Vector(0, 0, -3.9), App.Rotation())
sketch14.addGeometry([
    Part.Circle(Vector(-24.8, -4.9, 0), Vector(0, 0, 1), 2.3),
    Part.Circle(Vector(-24.8, 4.9, 0), Vector(0, 0, 1), 2.3),
], False)
sketch14.addConstraint([
    Sketcher.Constraint("Equal", 0, 1),
    Sketcher.Constraint("Symmetric", 0, 3, 1, 3, -1),
    Sketcher.Constraint("Diameter", 0, 4.6),
    Sketcher.Constraint("DistanceY", 0, 3, -1, 1, 4.9),
    Sketcher.Constraint("DistanceX", 0, 3, -1, 1, 24.775),
])
sketch14.setExpression("Constraints[2]", "Params.sketch14_diameter")
pocket6 = body.newObject("PartDesign::Pocket", "Pocket005")
pocket6.Profile = sketch14
pocket6.setExpression("Length", "Params.pocket6_length")
pocket6.Reversed = True
doc.recompute()

fillet = body.newObject("PartDesign::Fillet", "Fillet")
fillet.Base = (pocket6, edges_at(pocket6, [
    (27.025, 2.45, -9.25),
    (27.025, 2.45, 9.25),
    (-27.025, 2.45, 9.25),
    (-27.025, 2.45, -9.25),
]))
fillet.setExpression("Radius", "Params.fillet_radius")

sketch15 = body.newObject("Sketcher::SketchObject", "Sketch014")
sketch15.AttachmentSupport = (doc.getObject("XY_Plane"), [""])
sketch15.MapMode = "FlatFace"
sketch15.AttachmentOffset = App.Placement(Vector(0, 0, 0.5), App.Rotation())
sketch15.addGeometry([
    Part.LineSegment(Vector(-27, 3.9, 0), Vector(-20, 5, 0)),
    Part.LineSegment(Vector(-20, 5, 0), Vector(-27, 5, 0)),
    Part.LineSegment(Vector(-27, 5, 0), Vector(-27, 3.9, 0)),
], False)
sketch15.addConstraint([
    Sketcher.Constraint("Coincident", 0, 2, 1, 1),
    Sketcher.Constraint("Coincident", 1, 2, 2, 1),
    Sketcher.Constraint("Coincident", 2, 2, 0, 1),
    Sketcher.Constraint("Horizontal", 1),
    Sketcher.Constraint("Vertical", 2),
    Sketcher.Constraint("DistanceX", 1, 2, 1, 1, 7.0),
    Sketcher.Constraint("DistanceY", 2, 2, 2, 1, 1.1),
    Sketcher.Constraint("DistanceY", -1, 1, 0, 2, 5.0),
    Sketcher.Constraint("DistanceX", 0, 2, -1, 1, 20.025),
])
sketch15.setExpression("Constraints[5]", "Params.sketch15_width")
sketch15.setExpression("Constraints[6]", "Params.sketch15_height")
pocket7 = body.newObject("PartDesign::Pocket", "Pocket006")
pocket7.Profile = sketch15
pocket7.setExpression("Length", "Params.pocket7_length")

doc.recompute()
